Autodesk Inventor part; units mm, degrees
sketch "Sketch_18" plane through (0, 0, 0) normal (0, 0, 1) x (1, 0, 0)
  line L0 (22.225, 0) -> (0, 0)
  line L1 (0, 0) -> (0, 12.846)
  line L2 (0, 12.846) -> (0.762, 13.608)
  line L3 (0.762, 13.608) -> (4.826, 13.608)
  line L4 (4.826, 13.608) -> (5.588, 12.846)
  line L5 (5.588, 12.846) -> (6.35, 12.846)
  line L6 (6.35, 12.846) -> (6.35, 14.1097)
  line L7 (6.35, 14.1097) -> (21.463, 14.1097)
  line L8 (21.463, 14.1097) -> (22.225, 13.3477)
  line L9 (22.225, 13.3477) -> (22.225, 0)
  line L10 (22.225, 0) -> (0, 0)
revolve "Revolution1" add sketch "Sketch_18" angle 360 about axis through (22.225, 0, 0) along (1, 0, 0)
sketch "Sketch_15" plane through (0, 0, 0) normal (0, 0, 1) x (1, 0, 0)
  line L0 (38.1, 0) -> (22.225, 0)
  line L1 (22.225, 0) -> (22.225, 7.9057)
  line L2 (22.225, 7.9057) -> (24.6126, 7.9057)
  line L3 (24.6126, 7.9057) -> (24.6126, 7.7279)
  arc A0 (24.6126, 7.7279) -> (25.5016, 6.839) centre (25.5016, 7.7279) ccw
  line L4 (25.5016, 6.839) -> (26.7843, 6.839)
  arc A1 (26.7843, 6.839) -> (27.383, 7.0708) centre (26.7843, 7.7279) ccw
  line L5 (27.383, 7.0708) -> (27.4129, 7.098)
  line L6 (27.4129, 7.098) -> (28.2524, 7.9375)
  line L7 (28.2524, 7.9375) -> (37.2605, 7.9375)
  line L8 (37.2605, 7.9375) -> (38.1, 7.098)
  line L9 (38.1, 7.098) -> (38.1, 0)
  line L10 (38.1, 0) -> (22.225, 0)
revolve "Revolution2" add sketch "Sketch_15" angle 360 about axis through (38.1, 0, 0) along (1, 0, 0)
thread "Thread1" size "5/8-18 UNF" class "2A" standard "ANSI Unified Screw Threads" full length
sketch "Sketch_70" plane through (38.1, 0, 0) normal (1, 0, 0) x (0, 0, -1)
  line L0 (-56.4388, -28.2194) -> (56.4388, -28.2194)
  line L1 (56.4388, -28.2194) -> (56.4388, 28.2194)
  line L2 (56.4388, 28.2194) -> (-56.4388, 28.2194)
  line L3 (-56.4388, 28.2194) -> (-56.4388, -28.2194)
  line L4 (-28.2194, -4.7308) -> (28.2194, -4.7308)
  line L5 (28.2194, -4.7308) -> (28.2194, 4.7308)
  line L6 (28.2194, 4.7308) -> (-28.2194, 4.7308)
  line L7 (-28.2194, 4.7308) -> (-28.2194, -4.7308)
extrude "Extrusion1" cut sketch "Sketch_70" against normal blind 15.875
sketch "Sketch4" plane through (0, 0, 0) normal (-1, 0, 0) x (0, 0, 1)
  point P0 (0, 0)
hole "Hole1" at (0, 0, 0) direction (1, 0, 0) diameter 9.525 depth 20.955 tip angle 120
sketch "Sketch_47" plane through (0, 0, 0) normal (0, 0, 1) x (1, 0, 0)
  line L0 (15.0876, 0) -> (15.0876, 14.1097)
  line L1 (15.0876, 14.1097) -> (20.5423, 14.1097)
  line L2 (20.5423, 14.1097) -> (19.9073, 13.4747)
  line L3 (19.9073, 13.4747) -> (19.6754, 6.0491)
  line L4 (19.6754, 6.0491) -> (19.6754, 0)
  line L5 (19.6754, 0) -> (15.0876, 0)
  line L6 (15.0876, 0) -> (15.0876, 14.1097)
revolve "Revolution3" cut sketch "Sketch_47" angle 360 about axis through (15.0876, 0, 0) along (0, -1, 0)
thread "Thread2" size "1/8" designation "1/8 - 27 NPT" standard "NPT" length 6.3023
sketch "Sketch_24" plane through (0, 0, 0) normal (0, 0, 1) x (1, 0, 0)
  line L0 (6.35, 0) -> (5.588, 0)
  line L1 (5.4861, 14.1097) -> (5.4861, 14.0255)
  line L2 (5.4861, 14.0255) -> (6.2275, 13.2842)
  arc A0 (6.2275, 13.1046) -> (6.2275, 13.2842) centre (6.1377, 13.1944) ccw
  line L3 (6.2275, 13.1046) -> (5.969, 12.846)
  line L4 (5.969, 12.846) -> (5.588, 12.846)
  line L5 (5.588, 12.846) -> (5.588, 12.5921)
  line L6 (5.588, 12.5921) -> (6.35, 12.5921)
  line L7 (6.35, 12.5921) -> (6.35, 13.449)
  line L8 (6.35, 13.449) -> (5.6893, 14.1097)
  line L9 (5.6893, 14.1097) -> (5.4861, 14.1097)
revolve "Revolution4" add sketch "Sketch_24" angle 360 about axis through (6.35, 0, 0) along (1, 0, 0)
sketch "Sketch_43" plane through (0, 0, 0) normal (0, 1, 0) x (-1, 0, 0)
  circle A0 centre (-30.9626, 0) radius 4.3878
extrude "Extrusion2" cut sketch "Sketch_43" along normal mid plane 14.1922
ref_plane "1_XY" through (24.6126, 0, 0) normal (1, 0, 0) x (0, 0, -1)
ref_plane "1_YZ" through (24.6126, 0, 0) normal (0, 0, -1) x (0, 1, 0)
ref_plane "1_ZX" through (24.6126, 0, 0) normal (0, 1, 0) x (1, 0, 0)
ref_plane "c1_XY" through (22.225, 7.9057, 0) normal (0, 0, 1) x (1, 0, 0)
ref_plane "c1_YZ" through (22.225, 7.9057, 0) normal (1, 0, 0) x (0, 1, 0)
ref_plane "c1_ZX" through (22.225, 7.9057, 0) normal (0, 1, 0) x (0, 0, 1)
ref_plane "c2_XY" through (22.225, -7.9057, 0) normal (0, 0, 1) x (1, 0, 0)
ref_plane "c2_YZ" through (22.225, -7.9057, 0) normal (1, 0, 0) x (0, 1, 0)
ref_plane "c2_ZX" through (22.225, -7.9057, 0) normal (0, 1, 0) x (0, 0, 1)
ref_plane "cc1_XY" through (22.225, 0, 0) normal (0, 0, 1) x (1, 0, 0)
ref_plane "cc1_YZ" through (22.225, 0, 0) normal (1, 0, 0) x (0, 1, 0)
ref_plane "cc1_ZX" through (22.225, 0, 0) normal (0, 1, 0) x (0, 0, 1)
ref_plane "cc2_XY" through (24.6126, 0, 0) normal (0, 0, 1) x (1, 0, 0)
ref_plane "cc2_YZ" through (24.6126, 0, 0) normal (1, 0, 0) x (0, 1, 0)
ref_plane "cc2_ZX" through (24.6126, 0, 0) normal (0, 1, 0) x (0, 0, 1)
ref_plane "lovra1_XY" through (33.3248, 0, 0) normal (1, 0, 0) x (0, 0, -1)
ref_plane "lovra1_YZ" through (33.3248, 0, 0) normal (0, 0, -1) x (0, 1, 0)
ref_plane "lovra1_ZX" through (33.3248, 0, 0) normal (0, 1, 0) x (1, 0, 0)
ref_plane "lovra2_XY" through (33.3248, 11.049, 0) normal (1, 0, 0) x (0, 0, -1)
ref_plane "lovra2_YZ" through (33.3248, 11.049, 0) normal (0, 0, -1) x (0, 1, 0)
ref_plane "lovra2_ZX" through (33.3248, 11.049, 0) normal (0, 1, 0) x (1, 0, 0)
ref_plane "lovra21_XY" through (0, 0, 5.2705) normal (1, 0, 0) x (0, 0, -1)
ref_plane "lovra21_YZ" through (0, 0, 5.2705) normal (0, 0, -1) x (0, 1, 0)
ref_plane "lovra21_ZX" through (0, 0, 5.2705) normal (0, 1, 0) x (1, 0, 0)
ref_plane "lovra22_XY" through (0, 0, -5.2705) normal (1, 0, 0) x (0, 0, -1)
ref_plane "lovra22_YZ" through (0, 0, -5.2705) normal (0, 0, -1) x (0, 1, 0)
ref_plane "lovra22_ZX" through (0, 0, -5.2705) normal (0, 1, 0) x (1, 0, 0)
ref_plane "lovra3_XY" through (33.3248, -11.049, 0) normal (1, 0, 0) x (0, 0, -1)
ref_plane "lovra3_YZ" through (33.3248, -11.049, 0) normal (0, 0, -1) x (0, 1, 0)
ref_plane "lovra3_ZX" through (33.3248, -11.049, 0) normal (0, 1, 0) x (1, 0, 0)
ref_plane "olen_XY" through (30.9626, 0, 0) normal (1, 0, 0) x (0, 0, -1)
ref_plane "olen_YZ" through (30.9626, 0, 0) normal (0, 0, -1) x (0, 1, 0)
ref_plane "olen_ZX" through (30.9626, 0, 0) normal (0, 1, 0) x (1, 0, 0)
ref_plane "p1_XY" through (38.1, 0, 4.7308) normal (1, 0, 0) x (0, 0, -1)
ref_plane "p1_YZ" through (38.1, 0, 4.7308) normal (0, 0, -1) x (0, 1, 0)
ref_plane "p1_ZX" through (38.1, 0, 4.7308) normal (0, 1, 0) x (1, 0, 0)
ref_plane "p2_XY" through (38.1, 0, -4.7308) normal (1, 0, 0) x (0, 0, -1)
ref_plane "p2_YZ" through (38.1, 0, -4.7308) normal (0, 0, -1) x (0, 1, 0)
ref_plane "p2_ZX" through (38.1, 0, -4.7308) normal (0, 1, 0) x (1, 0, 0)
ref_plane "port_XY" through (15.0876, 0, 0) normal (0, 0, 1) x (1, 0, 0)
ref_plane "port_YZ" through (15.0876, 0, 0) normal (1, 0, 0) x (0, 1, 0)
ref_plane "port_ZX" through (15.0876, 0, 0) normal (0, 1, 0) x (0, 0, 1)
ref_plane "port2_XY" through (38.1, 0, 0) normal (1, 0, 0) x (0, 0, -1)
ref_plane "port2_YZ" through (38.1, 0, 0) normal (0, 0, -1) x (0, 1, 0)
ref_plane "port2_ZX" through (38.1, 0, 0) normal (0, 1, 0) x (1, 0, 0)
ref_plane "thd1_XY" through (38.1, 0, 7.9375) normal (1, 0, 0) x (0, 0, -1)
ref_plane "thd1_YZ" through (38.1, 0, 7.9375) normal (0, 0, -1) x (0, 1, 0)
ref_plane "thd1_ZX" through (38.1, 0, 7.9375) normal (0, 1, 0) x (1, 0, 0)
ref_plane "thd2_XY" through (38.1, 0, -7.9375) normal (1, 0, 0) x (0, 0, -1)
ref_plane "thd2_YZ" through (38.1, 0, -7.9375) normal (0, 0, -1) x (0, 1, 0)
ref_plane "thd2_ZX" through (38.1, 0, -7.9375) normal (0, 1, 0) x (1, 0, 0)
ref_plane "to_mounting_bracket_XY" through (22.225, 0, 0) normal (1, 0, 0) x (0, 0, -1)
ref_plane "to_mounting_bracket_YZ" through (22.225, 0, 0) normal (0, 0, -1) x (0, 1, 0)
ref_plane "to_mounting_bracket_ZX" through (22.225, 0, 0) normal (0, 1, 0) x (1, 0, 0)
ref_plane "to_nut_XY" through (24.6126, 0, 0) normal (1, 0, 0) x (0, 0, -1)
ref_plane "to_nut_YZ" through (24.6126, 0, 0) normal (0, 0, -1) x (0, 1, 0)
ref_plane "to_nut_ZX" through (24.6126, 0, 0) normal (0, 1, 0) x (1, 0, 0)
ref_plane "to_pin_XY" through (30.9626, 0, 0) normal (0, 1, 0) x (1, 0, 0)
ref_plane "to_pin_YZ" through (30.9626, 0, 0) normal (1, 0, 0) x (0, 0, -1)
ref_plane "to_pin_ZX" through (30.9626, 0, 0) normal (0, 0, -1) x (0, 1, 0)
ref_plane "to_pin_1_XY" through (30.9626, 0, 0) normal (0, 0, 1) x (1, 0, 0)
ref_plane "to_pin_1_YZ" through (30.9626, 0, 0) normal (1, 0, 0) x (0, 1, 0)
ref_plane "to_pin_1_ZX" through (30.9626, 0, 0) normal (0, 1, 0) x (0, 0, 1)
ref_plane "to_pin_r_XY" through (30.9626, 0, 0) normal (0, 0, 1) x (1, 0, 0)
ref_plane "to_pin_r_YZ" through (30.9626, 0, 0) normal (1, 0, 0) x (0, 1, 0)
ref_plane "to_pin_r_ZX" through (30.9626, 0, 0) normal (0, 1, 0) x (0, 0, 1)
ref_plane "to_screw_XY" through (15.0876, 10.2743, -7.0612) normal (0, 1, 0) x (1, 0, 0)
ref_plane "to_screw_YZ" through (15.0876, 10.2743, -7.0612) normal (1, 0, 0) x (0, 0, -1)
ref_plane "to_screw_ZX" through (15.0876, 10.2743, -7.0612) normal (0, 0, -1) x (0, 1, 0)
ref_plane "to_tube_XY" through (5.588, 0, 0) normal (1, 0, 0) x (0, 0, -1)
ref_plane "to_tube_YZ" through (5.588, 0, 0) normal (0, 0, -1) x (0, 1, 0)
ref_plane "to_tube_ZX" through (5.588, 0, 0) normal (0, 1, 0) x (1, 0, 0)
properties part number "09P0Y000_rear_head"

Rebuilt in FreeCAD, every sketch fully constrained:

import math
import FreeCAD as App
import Part
import Sketcher
from FreeCAD import Vector
Q = App.Units.Quantity


def add_polygon(sketch, points):
    """Adds a closed chain of lines whose ends are joined by coincident constraints."""
    first, n = sketch.GeometryCount, len(points)
    for a, b in zip(points, points[1:] + points[:1]):
        sketch.addGeometry(Part.LineSegment(App.Vector(*a, 0), App.Vector(*b, 0)), False)
    for i in range(n):
        sketch.addConstraint(Sketcher.Constraint("Coincident", first + i, 2, first + (i + 1) % n, 1))

doc = App.newDocument("Part")
body = doc.addObject("PartDesign::Body", "Body")

# Sketch on XY plane
sketch1 = doc.addObject("Sketcher::SketchObject", "Sketch")
body.addObject(sketch1)
sketch1.AttachmentSupport = (doc.XY_Plane, [""])
sketch1.MapMode = "FlatFace"
add_polygon(sketch1, [(0, 0), (22.2, 0), (22.2, 13.3), (21.5, 14.1), (6.3, 14.1), (6.3, 12.8), (5.6, 12.8), (4.8, 13.6), (0.8, 13.6), (0, 12.8)])  # lines 0-9
sketch1.addConstraint([
    Sketcher.Constraint("Horizontal", 0),
    Sketcher.Constraint("Vertical", 1),
    Sketcher.Constraint("Horizontal", 3),
    Sketcher.Constraint("Vertical", 4),
    Sketcher.Constraint("Horizontal", 5),
    Sketcher.Constraint("Horizontal", 7),
    Sketcher.Constraint("Vertical", 9),
    Sketcher.Constraint("Coincident", 9, 2, -1, 1),
    Sketcher.Constraint("Parallel", 2, 6),
    Sketcher.Constraint("Perpendicular", 6, 8),
    Sketcher.Constraint("Horizontal", 5, 2, 8, 2),
    Sketcher.Constraint("Equal", 2, 6),
    Sketcher.Constraint("Equal", 6, 8),
    Sketcher.Constraint("DistanceX", 5, 2, 5, 1, Q("0.03 in")),
    Sketcher.Constraint("DistanceX", 7, 2, 7, 1, Q("0.16 in")),
    Sketcher.Constraint("DistanceX", 0, 1, 0, 2, Q("0.875 in")),
    Sketcher.Constraint("DistanceX", 3, 2, 3, 1, Q("0.595 in")),
    Sketcher.Constraint("DistanceY", 1, 1, 1, 2, Q("0.5255 in")),
    Sketcher.Constraint("DistanceY", 4, 2, 4, 1, 1.2637),
])
revolution = doc.addObject("PartDesign::Revolution", "Revolution")
body.addObject(revolution)
revolution.Profile = sketch1
revolution.ReferenceAxis = (sketch1, ["H_Axis"])
revolution.Angle = 360

# Sketch on XY plane
sketch2 = doc.addObject("Sketcher::SketchObject", "Sketch001")
body.addObject(sketch2)
sketch2.AttachmentSupport = (doc.XY_Plane, [""])
sketch2.MapMode = "FlatFace"
sketch2.addGeometry([
    Part.LineSegment(Vector(22.225, 0, 0), Vector(38.1, 0, 0)),  # 0
    Part.LineSegment(Vector(38.1, 0, 0), Vector(38.1, 7.098, 0)),  # 1
    Part.LineSegment(Vector(38.1, 7.098, 0), Vector(37.261, 7.938, 0)),  # 2
    Part.LineSegment(Vector(37.261, 7.938, 0), Vector(28.252, 7.938, 0)),  # 3
    Part.LineSegment(Vector(28.252, 7.938, 0), Vector(27.413, 7.098, 0)),  # 4
    Part.LineSegment(Vector(27.413, 7.098, 0), Vector(27.383, 7.071, 0)),  # 5
    Part.ArcOfCircle(Part.Circle(Vector(26.784, 7.728, 0), Vector(0, 0, 1), 0.889), math.radians(-90), math.radians(-48)),  # 6
    Part.LineSegment(Vector(26.784, 6.839, 0), Vector(25.502, 6.839, 0)),  # 7
    Part.ArcOfCircle(Part.Circle(Vector(25.502, 7.728, 0), Vector(0, 0, 1), 0.889), math.radians(180), math.radians(270)),  # 8
    Part.LineSegment(Vector(24.613, 7.728, 0), Vector(24.613, 7.906, 0)),  # 9
    Part.LineSegment(Vector(24.613, 7.906, 0), Vector(22.225, 7.906, 0)),  # 10
    Part.LineSegment(Vector(22.225, 7.906, 0), Vector(22.225, 0, 0)),  # 11
], False)
sketch2.addConstraint([
    Sketcher.Constraint("Coincident", 0, 2, 1, 1),
    Sketcher.Constraint("Coincident", 1, 2, 2, 1),
    Sketcher.Constraint("Coincident", 2, 2, 3, 1),
    Sketcher.Constraint("Coincident", 3, 2, 4, 1),
    Sketcher.Constraint("Coincident", 4, 2, 5, 1),
    Sketcher.Constraint("Coincident", 5, 2, 6, 2),
    Sketcher.Constraint("Tangent", 6, 1, 7, 1),
    Sketcher.Constraint("Tangent", 7, 2, 8, 2),
    Sketcher.Constraint("Tangent", 8, 1, 9, 1),
    Sketcher.Constraint("Coincident", 9, 2, 10, 1),
    Sketcher.Constraint("Coincident", 10, 2, 11, 1),
    Sketcher.Constraint("Coincident", 11, 2, 0, 1),
    Sketcher.Constraint("Horizontal", 0),
    Sketcher.Constraint("Vertical", 1),
    Sketcher.Constraint("Horizontal", 3),
    Sketcher.Constraint("Horizontal", 7),
    Sketcher.Constraint("Vertical", 9),
    Sketcher.Constraint("Horizontal", 10),
    Sketcher.Constraint("Vertical", 11),
    Sketcher.Constraint("Equal", 6, 8),
    Sketcher.Constraint("PointOnObject", 0, 2, -1),
    Sketcher.Constraint("Perpendicular", 2, 4),
    Sketcher.Constraint("Horizontal", 1, 2, 4, 2),
    Sketcher.Constraint("Equal", 2, 4),
    Sketcher.Constraint("Radius", 6, Q("0.035 in")),
    Sketcher.Constraint("DistanceX", -1, 1, 0, 2, Q("1.5 in")),
    Sketcher.Constraint("DistanceX", 0, 1, 0, 2, Q("0.625 in")),
    Sketcher.Constraint("DistanceX", 10, 2, 10, 1, Q("0.094 in")),
    Sketcher.Constraint("DistanceY", 9, 1, 9, 2, Q("0.007 in")),
    Sketcher.Constraint("DistanceX", 7, 2, 7, 1, Q("0.0505 in")),
    Sketcher.Constraint("DistanceY", -1, 1, 2, 2, Q("0.3125 in")),
    Sketcher.Constraint("Distance", 5, Q("0.0016 in")),
    Sketcher.Constraint("DistanceX", 3, 2, 3, 1, 9.008),
    Sketcher.Constraint("DistanceY", 1, 1, 1, 2, 7.098),
    Sketcher.Constraint("DistanceY", 11, 2, 11, 1, 7.9057),
])
revolution2 = doc.addObject("PartDesign::Revolution", "Revolution001")
body.addObject(revolution2)
revolution2.Profile = sketch2
revolution2.ReferenceAxis = (sketch2, ["H_Axis"])
revolution2.Angle = 360

# Sketch on YZ plane
sketch3 = doc.addObject("Sketcher::SketchObject", "Sketch002")
body.addObject(sketch3)
sketch3.AttachmentSupport = (doc.YZ_Plane, [""])
sketch3.MapMode = "FlatFace"
sketch3.AttachmentOffset = App.Placement(Vector(0, 0, 1.5 * 25.4), App.Rotation())
add_polygon(sketch3, [(28, 56), (-28, 56), (-28, -56), (28, -56)])  # lines 0-3
add_polygon(sketch3, [(-5, -28), (-5, 28), (5, 28), (5, -28)])  # lines 4-7
sketch3.addConstraint([
    Sketcher.Constraint("Horizontal", 0),
    Sketcher.Constraint("Vertical", 1),
    Sketcher.Constraint("Horizontal", 2),
    Sketcher.Constraint("Vertical", 3),
    Sketcher.Constraint("Vertical", 4),
    Sketcher.Constraint("Horizontal", 5),
    Sketcher.Constraint("Vertical", 6),
    Sketcher.Constraint("Horizontal", 7),
    Sketcher.Constraint("Symmetric", 0, 2, 2, 2, -1, 1),
    Sketcher.Constraint("Symmetric", 4, 2, 6, 2, -1, 1),
    Sketcher.Constraint("Equal", 2, 4),
    Sketcher.Constraint("DistanceX", 0, 2, 0, 1, Q("2.222 in")),
    Sketcher.Constraint("DistanceY", 1, 2, 1, 1, Q("4.444 in")),
    Sketcher.Constraint("DistanceX", 5, 1, 5, 2, Q("0.3725 in")),
])
pocket1 = doc.addObject("PartDesign::Pocket", "Pocket")
body.addObject(pocket1)
pocket1.Profile = sketch3
pocket1.Length = Q("0.625 in")

# Sketch on YZ plane
sketch4 = doc.addObject("Sketcher::SketchObject", "Sketch003")
body.addObject(sketch4)
sketch4.AttachmentSupport = (doc.YZ_Plane, [""])
sketch4.MapMode = "FlatFace"
sketch4.addGeometry(Part.Circle(Vector(0, 0, 0), Vector(0, 0, 1), 4.8), False)
sketch4.addConstraint([
    Sketcher.Constraint("Coincident", 0, 3, -1, 1),
    Sketcher.Constraint("Diameter", 0, Q("0.375 in")),
])
doc.recompute()
hole = doc.addObject("PartDesign::Hole", "Hole")
body.addObject(hole)
hole.Profile = sketch4
hole.ThreadType = "None"
hole.Diameter = Q("0.375 in")
hole.DepthType = "Dimension"
hole.Depth = Q("0.825 in")
hole.DrillPoint = "Angled"
hole.DrillPointAngle = 120
hole.Reversed = True

# Sketch on XY plane
sketch5 = doc.addObject("Sketcher::SketchObject", "Sketch004")
body.addObject(sketch5)
sketch5.AttachmentSupport = (doc.XY_Plane, [""])
sketch5.MapMode = "FlatFace"
add_polygon(sketch5, [(15.1, 14.1), (15.1, 0), (19.7, 0), (19.7, 6), (19.9, 13.5), (20.5, 14.1)])  # lines 0-5
sketch5.addGeometry(Part.LineSegment(Vector(15.1, 14.1, 0), Vector(15.1, 0, 0)), True)  # axis
sketch5.addConstraint([
    Sketcher.Constraint("Vertical", 0),
    Sketcher.Constraint("Horizontal", 1),
    Sketcher.Constraint("Vertical", 2),
    Sketcher.Constraint("Horizontal", 5),
    Sketcher.Constraint("Vertical", 6),
    Sketcher.Constraint("Coincident", 6, 1, 5, 2),
    Sketcher.Constraint("PointOnObject", 0, 2, -1),
    Sketcher.Constraint("PointOnObject", 6, 2, -1),
    Sketcher.Constraint("Angle", 4, Q("45 deg")),
    Sketcher.Constraint("DistanceY", 0, 2, 0, 1, Q("0.5555 in")),
    Sketcher.Constraint("DistanceX", -1, 1, 0, 2, Q("0.594 in")),
    Sketcher.Constraint("DistanceX", 3, 2, 4, 2, Q("0.025 in")),
    Sketcher.Constraint("Distance", 3, Q("0.2925 in")),
    Sketcher.Constraint("DistanceX", 1, 1, 1, 2, 4.5878),
    Sketcher.Constraint("DistanceX", 5, 2, 5, 1, 5.4547),
])
groove = doc.addObject("PartDesign::Groove", "Groove")
body.addObject(groove)
groove.Profile = sketch5
groove.ReferenceAxis = (sketch5, ["Axis0"])
groove.Angle = 360

# Sketch on XY plane
sketch6 = doc.addObject("Sketcher::SketchObject", "Sketch005")
body.addObject(sketch6)
sketch6.AttachmentSupport = (doc.XY_Plane, [""])
sketch6.MapMode = "FlatFace"
sketch6.addGeometry([
    Part.LineSegment(Vector(5.69, 14.11, 0), Vector(5.49, 14.11, 0)),  # 0
    Part.LineSegment(Vector(5.49, 14.11, 0), Vector(5.49, 14.03, 0)),  # 1
    Part.LineSegment(Vector(5.49, 14.03, 0), Vector(6.23, 13.28, 0)),  # 2
    Part.ArcOfCircle(Part.Circle(Vector(6.14, 13.19, 0), Vector(0, 0, 1), 0.13), math.radians(-45), math.radians(45)),  # 3
    Part.LineSegment(Vector(6.23, 13.1, 0), Vector(5.97, 12.85, 0)),  # 4
    Part.LineSegment(Vector(5.97, 12.85, 0), Vector(5.59, 12.85, 0)),  # 5
    Part.LineSegment(Vector(5.59, 12.85, 0), Vector(5.59, 12.59, 0)),  # 6
    Part.LineSegment(Vector(5.59, 12.59, 0), Vector(6.35, 12.59, 0)),  # 7
    Part.LineSegment(Vector(6.35, 12.59, 0), Vector(6.35, 13.45, 0)),  # 8
    Part.LineSegment(Vector(6.35, 13.45, 0), Vector(5.69, 14.11, 0)),  # 9
], False)
sketch6.addConstraint([
    Sketcher.Constraint("Coincident", 0, 2, 1, 1),
    Sketcher.Constraint("Coincident", 1, 2, 2, 1),
    Sketcher.Constraint("Tangent", 2, 2, 3, 2),
    Sketcher.Constraint("Tangent", 3, 1, 4, 1),
    Sketcher.Constraint("Coincident", 4, 2, 5, 1),
    Sketcher.Constraint("Coincident", 5, 2, 6, 1),
    Sketcher.Constraint("Coincident", 6, 2, 7, 1),
    Sketcher.Constraint("Coincident", 7, 2, 8, 1),
    Sketcher.Constraint("Coincident", 8, 2, 9, 1),
    Sketcher.Constraint("Coincident", 9, 2, 0, 1),
    Sketcher.Constraint("Horizontal", 0),
    Sketcher.Constraint("Vertical", 1),
    Sketcher.Constraint("Horizontal", 5),
    Sketcher.Constraint("Vertical", 6),
    Sketcher.Constraint("Horizontal", 7),
    Sketcher.Constraint("Vertical", 8),
    Sketcher.Constraint("Perpendicular", 2, 4),
    Sketcher.Constraint("Perpendicular", 4, 9),
    Sketcher.Constraint("Vertical", 2, 2, 3, 1),
    Sketcher.Constraint("Radius", 3, Q("0.005 in")),
    Sketcher.Constraint("DistanceX", 7, 1, 7, 2, Q("0.03 in")),
    Sketcher.Constraint("DistanceY", 6, 2, 6, 1, Q("0.01 in")),
    Sketcher.Constraint("DistanceX", 0, 2, 0, 1, Q("0.008 in")),
    Sketcher.Constraint("DistanceX", 5, 2, 5, 1, Q("0.015 in")),
    Sketcher.Constraint("DistanceX", -1, 1, 5, 2, Q("0.22 in")),
    Sketcher.Constraint("DistanceX", -1, 1, 0, 2, Q("0.216 in")),
    Sketcher.Constraint("DistanceY", -1, 1, 2, 2, Q("0.523 in")),
    Sketcher.Constraint("Distance", 4, Q("0.0144 in")),
    Sketcher.Constraint("DistanceY", 1, 2, 1, 1, 0.0842),
])
revolution3 = doc.addObject("PartDesign::Revolution", "Revolution002")
body.addObject(revolution3)
revolution3.Profile = sketch6
revolution3.ReferenceAxis = (sketch6, ["H_Axis"])
revolution3.Angle = 360

# Sketch on XZ plane
sketch7 = doc.addObject("Sketcher::SketchObject", "Sketch006")
body.addObject(sketch7)
sketch7.AttachmentSupport = (doc.XZ_Plane, [""])
sketch7.MapMode = "FlatFace"
sketch7.addGeometry(Part.Circle(Vector(31, 0, 0), Vector(0, 0, 1), 4.4), False)
sketch7.addConstraint([
    Sketcher.Constraint("PointOnObject", 0, 3, -1),
    Sketcher.Constraint("Diameter", 0, Q("0.3455 in")),
    Sketcher.Constraint("DistanceX", -1, 1, 0, 3, Q("1.219 in")),
])
pocket2 = doc.addObject("PartDesign::Pocket", "Pocket001")
body.addObject(pocket2)
pocket2.Profile = sketch7
pocket2.Length = 14.1922
pocket2.Midplane = True

doc.recompute()
